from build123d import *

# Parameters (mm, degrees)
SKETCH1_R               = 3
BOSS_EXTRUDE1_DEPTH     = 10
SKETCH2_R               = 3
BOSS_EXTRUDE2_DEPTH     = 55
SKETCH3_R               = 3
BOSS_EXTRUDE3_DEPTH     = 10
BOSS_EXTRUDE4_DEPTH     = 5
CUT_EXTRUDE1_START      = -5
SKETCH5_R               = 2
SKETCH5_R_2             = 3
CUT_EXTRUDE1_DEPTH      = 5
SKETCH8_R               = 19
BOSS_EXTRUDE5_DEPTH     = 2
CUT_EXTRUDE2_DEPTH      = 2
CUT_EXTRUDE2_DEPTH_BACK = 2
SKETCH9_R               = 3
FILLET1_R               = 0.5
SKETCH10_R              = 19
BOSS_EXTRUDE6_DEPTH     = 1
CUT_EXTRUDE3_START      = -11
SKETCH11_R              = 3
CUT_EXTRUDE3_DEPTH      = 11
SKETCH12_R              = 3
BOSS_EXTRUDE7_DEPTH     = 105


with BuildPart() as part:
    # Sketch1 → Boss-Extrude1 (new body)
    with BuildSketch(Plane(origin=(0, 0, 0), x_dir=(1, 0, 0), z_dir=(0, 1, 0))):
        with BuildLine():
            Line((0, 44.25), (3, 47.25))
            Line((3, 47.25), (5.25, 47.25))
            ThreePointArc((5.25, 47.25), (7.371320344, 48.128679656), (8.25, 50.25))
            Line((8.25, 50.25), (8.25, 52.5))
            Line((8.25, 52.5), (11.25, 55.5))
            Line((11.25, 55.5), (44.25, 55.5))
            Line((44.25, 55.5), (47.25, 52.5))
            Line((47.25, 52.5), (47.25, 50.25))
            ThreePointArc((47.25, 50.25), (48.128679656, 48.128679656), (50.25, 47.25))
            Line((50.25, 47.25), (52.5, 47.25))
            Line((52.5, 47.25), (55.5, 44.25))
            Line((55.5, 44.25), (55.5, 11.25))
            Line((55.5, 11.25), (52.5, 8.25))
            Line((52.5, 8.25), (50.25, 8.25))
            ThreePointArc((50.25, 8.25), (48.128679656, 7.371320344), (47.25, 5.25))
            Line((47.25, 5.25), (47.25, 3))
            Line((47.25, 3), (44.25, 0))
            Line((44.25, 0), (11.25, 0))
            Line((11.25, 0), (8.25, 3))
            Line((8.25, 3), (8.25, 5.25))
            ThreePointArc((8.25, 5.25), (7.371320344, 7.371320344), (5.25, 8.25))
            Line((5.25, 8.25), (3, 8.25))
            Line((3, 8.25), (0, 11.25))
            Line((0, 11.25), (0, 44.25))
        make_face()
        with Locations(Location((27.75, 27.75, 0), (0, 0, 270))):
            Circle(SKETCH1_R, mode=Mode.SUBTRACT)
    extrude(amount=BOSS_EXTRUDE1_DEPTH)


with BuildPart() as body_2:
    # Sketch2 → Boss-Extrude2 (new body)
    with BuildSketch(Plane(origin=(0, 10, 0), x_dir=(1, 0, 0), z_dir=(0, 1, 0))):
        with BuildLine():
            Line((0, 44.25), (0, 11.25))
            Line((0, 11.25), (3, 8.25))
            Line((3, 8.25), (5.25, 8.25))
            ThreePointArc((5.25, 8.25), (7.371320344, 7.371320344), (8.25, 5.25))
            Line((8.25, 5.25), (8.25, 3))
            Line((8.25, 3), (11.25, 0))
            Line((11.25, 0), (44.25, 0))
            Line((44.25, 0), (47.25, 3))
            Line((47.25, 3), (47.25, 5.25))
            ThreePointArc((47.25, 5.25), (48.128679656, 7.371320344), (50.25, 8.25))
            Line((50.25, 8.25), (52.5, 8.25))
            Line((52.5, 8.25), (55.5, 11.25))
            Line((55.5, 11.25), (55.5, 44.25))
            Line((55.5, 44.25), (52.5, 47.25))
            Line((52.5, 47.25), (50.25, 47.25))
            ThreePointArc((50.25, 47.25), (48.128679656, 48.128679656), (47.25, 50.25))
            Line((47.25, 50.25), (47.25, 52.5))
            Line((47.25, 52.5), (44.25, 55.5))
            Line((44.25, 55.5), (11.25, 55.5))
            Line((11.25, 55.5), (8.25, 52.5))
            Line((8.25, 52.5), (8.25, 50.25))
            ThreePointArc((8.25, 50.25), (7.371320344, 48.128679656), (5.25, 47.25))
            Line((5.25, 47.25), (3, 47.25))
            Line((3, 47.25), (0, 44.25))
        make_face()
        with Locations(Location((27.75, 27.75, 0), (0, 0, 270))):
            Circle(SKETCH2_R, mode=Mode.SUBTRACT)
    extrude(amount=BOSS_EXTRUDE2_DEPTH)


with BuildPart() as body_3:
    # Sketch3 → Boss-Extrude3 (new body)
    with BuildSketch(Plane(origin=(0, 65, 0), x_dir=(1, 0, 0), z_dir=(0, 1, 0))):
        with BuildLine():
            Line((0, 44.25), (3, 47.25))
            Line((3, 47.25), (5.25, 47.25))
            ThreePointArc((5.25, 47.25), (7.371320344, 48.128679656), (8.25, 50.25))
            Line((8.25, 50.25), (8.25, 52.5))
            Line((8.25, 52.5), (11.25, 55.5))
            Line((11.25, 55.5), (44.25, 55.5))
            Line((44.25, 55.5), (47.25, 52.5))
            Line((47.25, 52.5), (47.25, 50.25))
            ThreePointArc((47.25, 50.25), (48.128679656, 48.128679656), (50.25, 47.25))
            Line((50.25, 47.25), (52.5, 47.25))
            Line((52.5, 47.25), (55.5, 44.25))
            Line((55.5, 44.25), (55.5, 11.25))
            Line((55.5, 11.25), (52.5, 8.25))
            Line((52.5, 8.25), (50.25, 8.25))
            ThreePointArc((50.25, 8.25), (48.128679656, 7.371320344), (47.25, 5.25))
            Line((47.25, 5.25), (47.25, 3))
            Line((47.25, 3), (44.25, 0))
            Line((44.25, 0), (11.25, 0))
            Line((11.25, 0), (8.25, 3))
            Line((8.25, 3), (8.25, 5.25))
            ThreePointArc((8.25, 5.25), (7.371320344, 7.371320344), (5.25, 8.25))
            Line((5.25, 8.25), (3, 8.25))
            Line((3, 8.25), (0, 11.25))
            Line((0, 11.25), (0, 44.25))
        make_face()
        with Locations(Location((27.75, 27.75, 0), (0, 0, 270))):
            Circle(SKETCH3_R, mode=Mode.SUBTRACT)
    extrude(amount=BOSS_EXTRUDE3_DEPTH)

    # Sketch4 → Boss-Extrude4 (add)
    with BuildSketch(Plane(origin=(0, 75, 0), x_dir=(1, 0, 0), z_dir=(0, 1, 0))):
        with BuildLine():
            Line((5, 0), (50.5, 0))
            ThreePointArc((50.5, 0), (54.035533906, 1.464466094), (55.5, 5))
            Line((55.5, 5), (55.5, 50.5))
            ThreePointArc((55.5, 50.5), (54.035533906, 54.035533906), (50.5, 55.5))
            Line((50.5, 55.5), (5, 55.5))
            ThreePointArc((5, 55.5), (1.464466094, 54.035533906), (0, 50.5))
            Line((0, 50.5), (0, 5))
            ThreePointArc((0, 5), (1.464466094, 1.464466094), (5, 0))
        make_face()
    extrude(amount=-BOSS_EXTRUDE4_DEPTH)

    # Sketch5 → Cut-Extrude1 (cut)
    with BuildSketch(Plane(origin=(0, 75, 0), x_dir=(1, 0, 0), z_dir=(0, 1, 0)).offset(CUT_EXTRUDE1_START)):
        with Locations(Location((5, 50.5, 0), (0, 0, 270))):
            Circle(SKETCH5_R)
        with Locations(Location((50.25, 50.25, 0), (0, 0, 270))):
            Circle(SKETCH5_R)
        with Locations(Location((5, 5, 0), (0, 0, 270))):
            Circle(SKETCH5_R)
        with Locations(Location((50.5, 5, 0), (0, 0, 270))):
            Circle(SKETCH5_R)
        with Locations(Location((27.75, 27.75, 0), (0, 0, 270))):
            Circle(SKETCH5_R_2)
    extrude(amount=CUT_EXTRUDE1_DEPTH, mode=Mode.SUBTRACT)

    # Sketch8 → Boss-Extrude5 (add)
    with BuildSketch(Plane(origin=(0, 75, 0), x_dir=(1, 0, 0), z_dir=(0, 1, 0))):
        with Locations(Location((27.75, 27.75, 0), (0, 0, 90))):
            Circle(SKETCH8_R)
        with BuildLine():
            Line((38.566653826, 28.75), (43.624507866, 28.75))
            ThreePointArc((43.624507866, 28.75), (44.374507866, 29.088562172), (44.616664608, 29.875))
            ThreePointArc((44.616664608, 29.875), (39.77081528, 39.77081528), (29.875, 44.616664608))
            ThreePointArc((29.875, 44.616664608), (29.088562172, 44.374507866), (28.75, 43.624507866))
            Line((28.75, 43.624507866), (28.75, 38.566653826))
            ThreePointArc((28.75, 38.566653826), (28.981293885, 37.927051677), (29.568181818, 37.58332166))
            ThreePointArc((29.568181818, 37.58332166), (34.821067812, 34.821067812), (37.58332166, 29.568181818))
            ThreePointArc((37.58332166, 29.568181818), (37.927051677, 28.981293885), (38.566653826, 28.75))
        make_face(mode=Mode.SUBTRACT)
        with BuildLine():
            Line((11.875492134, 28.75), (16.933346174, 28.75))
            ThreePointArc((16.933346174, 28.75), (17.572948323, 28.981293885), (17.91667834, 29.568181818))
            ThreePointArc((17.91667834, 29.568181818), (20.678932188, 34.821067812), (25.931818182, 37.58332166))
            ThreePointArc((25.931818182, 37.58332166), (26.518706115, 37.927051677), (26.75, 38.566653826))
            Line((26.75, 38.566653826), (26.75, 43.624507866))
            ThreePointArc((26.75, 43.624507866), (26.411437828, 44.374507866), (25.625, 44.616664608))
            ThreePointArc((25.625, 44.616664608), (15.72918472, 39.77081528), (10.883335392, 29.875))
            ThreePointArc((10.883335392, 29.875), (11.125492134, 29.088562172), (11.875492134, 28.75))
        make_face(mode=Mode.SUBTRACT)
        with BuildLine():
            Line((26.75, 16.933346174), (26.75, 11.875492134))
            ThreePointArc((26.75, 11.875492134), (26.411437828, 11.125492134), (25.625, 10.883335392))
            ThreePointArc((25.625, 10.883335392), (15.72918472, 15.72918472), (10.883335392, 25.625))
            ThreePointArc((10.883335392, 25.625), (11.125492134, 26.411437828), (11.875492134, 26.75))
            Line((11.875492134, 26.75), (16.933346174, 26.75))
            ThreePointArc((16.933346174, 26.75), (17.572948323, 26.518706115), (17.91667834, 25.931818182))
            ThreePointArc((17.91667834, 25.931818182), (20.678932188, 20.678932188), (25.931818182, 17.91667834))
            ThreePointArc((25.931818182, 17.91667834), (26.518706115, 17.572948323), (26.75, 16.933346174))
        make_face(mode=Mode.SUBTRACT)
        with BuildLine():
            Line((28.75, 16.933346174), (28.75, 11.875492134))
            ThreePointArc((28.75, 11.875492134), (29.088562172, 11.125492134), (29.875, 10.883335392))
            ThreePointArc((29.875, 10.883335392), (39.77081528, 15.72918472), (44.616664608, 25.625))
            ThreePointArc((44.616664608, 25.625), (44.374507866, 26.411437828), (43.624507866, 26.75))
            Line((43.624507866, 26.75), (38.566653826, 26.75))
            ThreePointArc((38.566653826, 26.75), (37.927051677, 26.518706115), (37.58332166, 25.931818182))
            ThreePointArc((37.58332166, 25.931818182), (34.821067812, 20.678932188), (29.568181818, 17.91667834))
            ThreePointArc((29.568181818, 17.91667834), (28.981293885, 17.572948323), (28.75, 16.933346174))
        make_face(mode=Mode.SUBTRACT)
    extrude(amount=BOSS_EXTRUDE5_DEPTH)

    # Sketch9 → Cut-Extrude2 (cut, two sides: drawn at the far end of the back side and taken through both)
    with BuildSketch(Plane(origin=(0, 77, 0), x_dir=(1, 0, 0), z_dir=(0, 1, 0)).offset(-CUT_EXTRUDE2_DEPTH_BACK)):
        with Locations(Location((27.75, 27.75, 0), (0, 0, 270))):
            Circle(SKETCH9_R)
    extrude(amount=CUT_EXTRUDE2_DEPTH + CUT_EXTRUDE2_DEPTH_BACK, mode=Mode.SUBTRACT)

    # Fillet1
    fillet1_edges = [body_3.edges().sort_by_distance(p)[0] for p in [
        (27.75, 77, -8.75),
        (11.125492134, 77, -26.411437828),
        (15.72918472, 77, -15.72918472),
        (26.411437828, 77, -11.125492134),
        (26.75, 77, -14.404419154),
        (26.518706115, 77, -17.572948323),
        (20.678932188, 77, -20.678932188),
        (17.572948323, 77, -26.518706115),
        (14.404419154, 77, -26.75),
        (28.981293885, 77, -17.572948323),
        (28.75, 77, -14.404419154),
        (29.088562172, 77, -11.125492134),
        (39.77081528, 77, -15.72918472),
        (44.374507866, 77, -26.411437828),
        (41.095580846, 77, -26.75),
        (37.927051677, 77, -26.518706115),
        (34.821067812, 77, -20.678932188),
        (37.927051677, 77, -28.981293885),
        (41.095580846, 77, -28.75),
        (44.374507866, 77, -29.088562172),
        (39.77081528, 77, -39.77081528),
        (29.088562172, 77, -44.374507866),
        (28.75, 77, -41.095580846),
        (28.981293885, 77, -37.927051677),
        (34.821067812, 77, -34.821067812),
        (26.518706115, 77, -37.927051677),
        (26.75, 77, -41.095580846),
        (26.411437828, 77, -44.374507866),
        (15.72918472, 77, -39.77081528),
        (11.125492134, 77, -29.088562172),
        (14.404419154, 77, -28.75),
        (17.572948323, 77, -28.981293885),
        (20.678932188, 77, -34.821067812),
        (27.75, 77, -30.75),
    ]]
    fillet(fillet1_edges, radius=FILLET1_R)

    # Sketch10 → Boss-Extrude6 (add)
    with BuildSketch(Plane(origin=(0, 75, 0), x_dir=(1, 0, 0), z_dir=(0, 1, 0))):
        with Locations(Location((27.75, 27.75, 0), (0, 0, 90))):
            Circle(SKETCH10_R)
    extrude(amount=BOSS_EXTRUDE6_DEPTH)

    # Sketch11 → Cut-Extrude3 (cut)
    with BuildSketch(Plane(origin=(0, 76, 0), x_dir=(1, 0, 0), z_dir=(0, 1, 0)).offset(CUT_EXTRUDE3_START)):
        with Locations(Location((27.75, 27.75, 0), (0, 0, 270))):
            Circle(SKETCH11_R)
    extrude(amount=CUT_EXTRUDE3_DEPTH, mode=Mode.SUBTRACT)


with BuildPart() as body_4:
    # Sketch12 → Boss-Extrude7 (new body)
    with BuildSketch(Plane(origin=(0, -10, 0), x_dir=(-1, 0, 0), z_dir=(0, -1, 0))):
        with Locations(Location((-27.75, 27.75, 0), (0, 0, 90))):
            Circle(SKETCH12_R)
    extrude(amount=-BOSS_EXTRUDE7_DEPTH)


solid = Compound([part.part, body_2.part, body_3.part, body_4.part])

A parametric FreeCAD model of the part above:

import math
import FreeCAD as App
import Part
import Sketcher


def edges_at(feature, points):
    """Names of the edges that pass closest to the given points."""
    edges = feature.Shape.Edges
    near = lambda p: min(range(len(edges)), key=lambda i: edges[i].distToShape(Part.Vertex(*p))[0])
    return sorted({f"Edge{near(p) + 1}" for p in points})

doc = App.newDocument("Part")
body = doc.addObject("PartDesign::Body", "Body")

sketch1 = doc.addObject("Sketcher::SketchObject", "Sketch")
body.addObject(sketch1)
sketch1.AttachmentSupport = (doc.XZ_Plane, [""])
sketch1.MapMode = "FlatFace"
sketch1.addGeometry([
    Part.LineSegment(App.Vector(3, -47.25, 0), App.Vector(0, -44.25, 0)),
    Part.LineSegment(App.Vector(0, -44.25, 0), App.Vector(0, -11.25, 0)),
    Part.LineSegment(App.Vector(0, -11.25, 0), App.Vector(3, -8.25, 0)),
    Part.LineSegment(App.Vector(3, -8.25, 0), App.Vector(5.25, -8.25, 0)),
    Part.ArcOfCircle(Part.Circle(App.Vector(5.25, -5.25, 0), App.Vector(0, 0, 1), 3), math.radians(-90), math.radians(0)),
    Part.LineSegment(App.Vector(8.25, -5.25, 0), App.Vector(8.25, -3, 0)),
    Part.LineSegment(App.Vector(8.25, -3, 0), App.Vector(11.25, 0, 0)),
    Part.LineSegment(App.Vector(11.25, 0, 0), App.Vector(44.25, 0, 0)),
    Part.LineSegment(App.Vector(44.25, 0, 0), App.Vector(47.25, -3, 0)),
    Part.LineSegment(App.Vector(47.25, -3, 0), App.Vector(47.25, -5.25, 0)),
    Part.ArcOfCircle(Part.Circle(App.Vector(50.25, -5.25, 0), App.Vector(0, 0, 1), 3), math.radians(180), math.radians(270)),
    Part.LineSegment(App.Vector(50.25, -8.25, 0), App.Vector(52.5, -8.25, 0)),
    Part.LineSegment(App.Vector(52.5, -8.25, 0), App.Vector(55.5, -11.25, 0)),
    Part.LineSegment(App.Vector(55.5, -11.25, 0), App.Vector(55.5, -44.25, 0)),
    Part.LineSegment(App.Vector(55.5, -44.25, 0), App.Vector(52.5, -47.25, 0)),
    Part.LineSegment(App.Vector(52.5, -47.25, 0), App.Vector(50.25, -47.25, 0)),
    Part.ArcOfCircle(Part.Circle(App.Vector(50.25, -50.25, 0), App.Vector(0, 0, 1), 3), math.radians(90), math.radians(180)),
    Part.LineSegment(App.Vector(47.25, -50.25, 0), App.Vector(47.25, -52.5, 0)),
    Part.LineSegment(App.Vector(47.25, -52.5, 0), App.Vector(44.25, -55.5, 0)),
    Part.LineSegment(App.Vector(44.25, -55.5, 0), App.Vector(11.25, -55.5, 0)),
    Part.LineSegment(App.Vector(11.25, -55.5, 0), App.Vector(8.25, -52.5, 0)),
    Part.LineSegment(App.Vector(8.25, -52.5, 0), App.Vector(8.25, -50.25, 0)),
    Part.ArcOfCircle(Part.Circle(App.Vector(5.25, -50.25, 0), App.Vector(0, 0, 1), 3), math.radians(0), math.radians(90)),
    Part.LineSegment(App.Vector(5.25, -47.25, 0), App.Vector(3, -47.25, 0)),
    Part.Circle(App.Vector(27.75, -27.75, 0), App.Vector(0, 0, 1), 3),
], False)
sketch1.addConstraint([
    Sketcher.Constraint("Coincident", 0, 2, 1, 1),
    Sketcher.Constraint("Coincident", 1, 2, 2, 1),
    Sketcher.Constraint("Coincident", 2, 2, 3, 1),
    Sketcher.Constraint("Tangent", 3, 2, 4, 1),
    Sketcher.Constraint("Tangent", 4, 2, 5, 1),
    Sketcher.Constraint("Coincident", 5, 2, 6, 1),
    Sketcher.Constraint("Coincident", 6, 2, 7, 1),
    Sketcher.Constraint("Coincident", 7, 2, 8, 1),
    Sketcher.Constraint("Coincident", 8, 2, 9, 1),
    Sketcher.Constraint("Tangent", 9, 2, 10, 1),
    Sketcher.Constraint("Tangent", 10, 2, 11, 1),
    Sketcher.Constraint("Coincident", 11, 2, 12, 1),
    Sketcher.Constraint("Coincident", 12, 2, 13, 1),
    Sketcher.Constraint("Coincident", 13, 2, 14, 1),
    Sketcher.Constraint("Coincident", 14, 2, 15, 1),
    Sketcher.Constraint("Tangent", 15, 2, 16, 1),
    Sketcher.Constraint("Tangent", 16, 2, 17, 1),
    Sketcher.Constraint("Coincident", 17, 2, 18, 1),
    Sketcher.Constraint("Coincident", 18, 2, 19, 1),
    Sketcher.Constraint("Coincident", 19, 2, 20, 1),
    Sketcher.Constraint("Coincident", 20, 2, 21, 1),
    Sketcher.Constraint("Tangent", 21, 2, 22, 1),
    Sketcher.Constraint("Tangent", 22, 2, 23, 1),
    Sketcher.Constraint("Coincident", 23, 2, 0, 1),
    Sketcher.Constraint("Vertical", 1),
    Sketcher.Constraint("Horizontal", 3),
    Sketcher.Constraint("Vertical", 5),
    Sketcher.Constraint("Horizontal", 7),
    Sketcher.Constraint("Vertical", 9),
    Sketcher.Constraint("Horizontal", 11),
    Sketcher.Constraint("Vertical", 13),
    Sketcher.Constraint("Horizontal", 15),
    Sketcher.Constraint("Vertical", 17),
    Sketcher.Constraint("Horizontal", 19),
    Sketcher.Constraint("Vertical", 21),
    Sketcher.Constraint("Horizontal", 23),
    Sketcher.Constraint("Equal", 4, 10),
    Sketcher.Constraint("Equal", 10, 16),
    Sketcher.Constraint("Equal", 16, 22),
    Sketcher.Constraint("Equal", 22, 24),
    Sketcher.Constraint("PointOnObject", 0, 2, -2),
    Sketcher.Constraint("PointOnObject", 6, 2, -1),
    Sketcher.Constraint("Perpendicular", 0, 2),
    Sketcher.Constraint("Parallel", 2, 6),
    Sketcher.Constraint("Perpendicular", 6, 8),
    Sketcher.Constraint("Parallel", 8, 12),
    Sketcher.Constraint("Perpendicular", 12, 14),
    Sketcher.Constraint("Parallel", 14, 18),
    Sketcher.Constraint("Perpendicular", 18, 20),
    Sketcher.Constraint("Horizontal", 4, 3, 10, 3),
    Sketcher.Constraint("Horizontal", 16, 3, 22, 3),
    Sketcher.Constraint("Horizontal", 5, 2, 8, 2),
    Sketcher.Constraint("Horizontal", 1, 2, 12, 2),
    Sketcher.Constraint("Horizontal", 0, 2, 13, 2),
    Sketcher.Constraint("Horizontal", 17, 2, 20, 2),
    Sketcher.Constraint("Vertical", 10, 3, 16, 3),
    Sketcher.Constraint("Vertical", 4, 3, 22, 3),
    Sketcher.Constraint("Vertical", 11, 2, 14, 2),
    Sketcher.Constraint("Vertical", 7, 2, 18, 2),
    Sketcher.Constraint("Vertical", 6, 2, 19, 2),
    Sketcher.Constraint("Equal", 3, 11),
    Sketcher.Constraint("Equal", 19, 1),
    Sketcher.Constraint("Equal", 23, 5),
    Sketcher.Constraint("Equal", 9, 17),
    Sketcher.Constraint("Equal", 2, 6),
    Sketcher.Constraint("Diameter", 24, 6.0),
    Sketcher.Constraint("DistanceX", 7, 1, 7, 2, 33.0),
    Sketcher.Constraint("DistanceX", -1, 1, 2, 2, 3.0),
    Sketcher.Constraint("DistanceX", 3, 1, 3, 2, 2.25),
    Sketcher.Constraint("DistanceX", 4, 3, 24, 3, 22.5),
    Sketcher.Constraint("DistanceY", 24, 3, 4, 3, 22.5),
])
pad1 = doc.addObject("PartDesign::Pad", "Pad")
body.addObject(pad1)
pad1.Profile = sketch1
pad1.Length = 10
pad1.Reversed = True
body2 = doc.addObject("PartDesign::Body", "Body001")

sketch2 = doc.addObject("Sketcher::SketchObject", "Sketch001")
body2.addObject(sketch2)
sketch2.AttachmentSupport = (doc.getObject("XZ_Plane001"), [""])
sketch2.MapMode = "FlatFace"
sketch2.AttachmentOffset = App.Placement(App.Vector(0, 0, -10), App.Rotation())
sketch2.addGeometry([
    Part.LineSegment(App.Vector(0, -44.25, 0), App.Vector(0, -11.25, 0)),
    Part.LineSegment(App.Vector(0, -11.25, 0), App.Vector(3, -8.25, 0)),
    Part.LineSegment(App.Vector(3, -8.25, 0), App.Vector(5.25, -8.25, 0)),
    Part.ArcOfCircle(Part.Circle(App.Vector(5.25, -5.25, 0), App.Vector(0, 0, 1), 3), math.radians(-90), math.radians(0)),
    Part.LineSegment(App.Vector(8.25, -5.25, 0), App.Vector(8.25, -3, 0)),
    Part.LineSegment(App.Vector(8.25, -3, 0), App.Vector(11.25, 0, 0)),
    Part.LineSegment(App.Vector(11.25, 0, 0), App.Vector(44.25, 0, 0)),
    Part.LineSegment(App.Vector(44.25, 0, 0), App.Vector(47.25, -3, 0)),
    Part.LineSegment(App.Vector(47.25, -3, 0), App.Vector(47.25, -5.25, 0)),
    Part.ArcOfCircle(Part.Circle(App.Vector(50.25, -5.25, 0), App.Vector(0, 0, 1), 3), math.radians(180), math.radians(270)),
    Part.LineSegment(App.Vector(50.25, -8.25, 0), App.Vector(52.5, -8.25, 0)),
    Part.LineSegment(App.Vector(52.5, -8.25, 0), App.Vector(55.5, -11.25, 0)),
    Part.LineSegment(App.Vector(55.5, -11.25, 0), App.Vector(55.5, -44.25, 0)),
    Part.LineSegment(App.Vector(55.5, -44.25, 0), App.Vector(52.5, -47.25, 0)),
    Part.LineSegment(App.Vector(52.5, -47.25, 0), App.Vector(50.25, -47.25, 0)),
    Part.ArcOfCircle(Part.Circle(App.Vector(50.25, -50.25, 0), App.Vector(0, 0, 1), 3), math.radians(90), math.radians(180)),
    Part.LineSegment(App.Vector(47.25, -50.25, 0), App.Vector(47.25, -52.5, 0)),
    Part.LineSegment(App.Vector(47.25, -52.5, 0), App.Vector(44.25, -55.5, 0)),
    Part.LineSegment(App.Vector(44.25, -55.5, 0), App.Vector(11.25, -55.5, 0)),
    Part.LineSegment(App.Vector(11.25, -55.5, 0), App.Vector(8.25, -52.5, 0)),
    Part.LineSegment(App.Vector(8.25, -52.5, 0), App.Vector(8.25, -50.25, 0)),
    Part.ArcOfCircle(Part.Circle(App.Vector(5.25, -50.25, 0), App.Vector(0, 0, 1), 3), math.radians(0), math.radians(90)),
    Part.LineSegment(App.Vector(5.25, -47.25, 0), App.Vector(3, -47.25, 0)),
    Part.LineSegment(App.Vector(3, -47.25, 0), App.Vector(0, -44.25, 0)),
    Part.Circle(App.Vector(27.75, -27.75, 0), App.Vector(0, 0, 1), 3),
], False)
sketch2.addConstraint([
    Sketcher.Constraint("Coincident", 0, 2, 1, 1),
    Sketcher.Constraint("Coincident", 1, 2, 2, 1),
    Sketcher.Constraint("Tangent", 2, 2, 3, 1),
    Sketcher.Constraint("Tangent", 3, 2, 4, 1),
    Sketcher.Constraint("Coincident", 4, 2, 5, 1),
    Sketcher.Constraint("Coincident", 5, 2, 6, 1),
    Sketcher.Constraint("Coincident", 6, 2, 7, 1),
    Sketcher.Constraint("Coincident", 7, 2, 8, 1),
    Sketcher.Constraint("Tangent", 8, 2, 9, 1),
    Sketcher.Constraint("Tangent", 9, 2, 10, 1),
    Sketcher.Constraint("Coincident", 10, 2, 11, 1),
    Sketcher.Constraint("Coincident", 11, 2, 12, 1),
    Sketcher.Constraint("Coincident", 12, 2, 13, 1),
    Sketcher.Constraint("Coincident", 13, 2, 14, 1),
    Sketcher.Constraint("Tangent", 14, 2, 15, 1),
    Sketcher.Constraint("Tangent", 15, 2, 16, 1),
    Sketcher.Constraint("Coincident", 16, 2, 17, 1),
    Sketcher.Constraint("Coincident", 17, 2, 18, 1),
    Sketcher.Constraint("Coincident", 18, 2, 19, 1),
    Sketcher.Constraint("Coincident", 19, 2, 20, 1),
    Sketcher.Constraint("Tangent", 20, 2, 21, 1),
    Sketcher.Constraint("Tangent", 21, 2, 22, 1),
    Sketcher.Constraint("Coincident", 22, 2, 23, 1),
    Sketcher.Constraint("Coincident", 23, 2, 0, 1),
    Sketcher.Constraint("Vertical", 0),
    Sketcher.Constraint("Horizontal", 2),
    Sketcher.Constraint("Vertical", 4),
    Sketcher.Constraint("Horizontal", 6),
    Sketcher.Constraint("Vertical", 8),
    Sketcher.Constraint("Horizontal", 10),
    Sketcher.Constraint("Vertical", 12),
    Sketcher.Constraint("Horizontal", 14),
    Sketcher.Constraint("Vertical", 16),
    Sketcher.Constraint("Horizontal", 18),
    Sketcher.Constraint("Vertical", 20),
    Sketcher.Constraint("Horizontal", 22),
    Sketcher.Constraint("Equal", 3, 9),
    Sketcher.Constraint("Equal", 9, 15),
    Sketcher.Constraint("Equal", 15, 21),
    Sketcher.Constraint("Equal", 21, 24),
    Sketcher.Constraint("PointOnObject", 0, 2, -2),
    Sketcher.Constraint("PointOnObject", 5, 2, -1),
    Sketcher.Constraint("Parallel", 1, 5),
    Sketcher.Constraint("Perpendicular", 5, 7),
    Sketcher.Constraint("Parallel", 7, 11),
    Sketcher.Constraint("Perpendicular", 11, 13),
    Sketcher.Constraint("Parallel", 13, 17),
    Sketcher.Constraint("Perpendicular", 17, 19),
    Sketcher.Constraint("Parallel", 19, 23),
    Sketcher.Constraint("Horizontal", 3, 3, 9, 3),
    Sketcher.Constraint("Horizontal", 15, 3, 21, 3),
    Sketcher.Constraint("Horizontal", 4, 2, 7, 2),
    Sketcher.Constraint("Horizontal", 0, 2, 11, 2),
    Sketcher.Constraint("Horizontal", 16, 2, 19, 2),
    Sketcher.Constraint("Horizontal", 12, 2, 23, 2),
    Sketcher.Constraint("Vertical", 9, 3, 15, 3),
    Sketcher.Constraint("Vertical", 3, 3, 21, 3),
    Sketcher.Constraint("Vertical", 10, 2, 13, 2),
    Sketcher.Constraint("Vertical", 6, 2, 17, 2),
    Sketcher.Constraint("Vertical", 5, 2, 18, 2),
    Sketcher.Constraint("Equal", 2, 10),
    Sketcher.Constraint("Equal", 18, 0),
    Sketcher.Constraint("Equal", 22, 4),
    Sketcher.Constraint("Equal", 8, 16),
    Sketcher.Constraint("Equal", 1, 5),
    Sketcher.Constraint("Diameter", 24, 6.0),
    Sketcher.Constraint("DistanceX", 6, 1, 6, 2, 33.0),
    Sketcher.Constraint("DistanceX", -1, 1, 1, 2, 3.0),
    Sketcher.Constraint("DistanceX", 2, 1, 2, 2, 2.25),
    Sketcher.Constraint("DistanceX", 3, 3, 24, 3, 22.5),
    Sketcher.Constraint("DistanceY", 24, 3, 3, 3, 22.5),
])
pad2 = doc.addObject("PartDesign::Pad", "Pad001")
body2.addObject(pad2)
pad2.Profile = sketch2
pad2.Length = 55
pad2.Reversed = True
body3 = doc.addObject("PartDesign::Body", "Body002")

sketch3 = doc.addObject("Sketcher::SketchObject", "Sketch002")
body3.addObject(sketch3)
sketch3.AttachmentSupport = (doc.getObject("XZ_Plane002"), [""])
sketch3.MapMode = "FlatFace"
sketch3.AttachmentOffset = App.Placement(App.Vector(0, 0, -65), App.Rotation())
sketch3.addGeometry([
    Part.LineSegment(App.Vector(3, -47.25, 0), App.Vector(0, -44.25, 0)),
    Part.LineSegment(App.Vector(0, -44.25, 0), App.Vector(0, -11.25, 0)),
    Part.LineSegment(App.Vector(0, -11.25, 0), App.Vector(3, -8.25, 0)),
    Part.LineSegment(App.Vector(3, -8.25, 0), App.Vector(5.25, -8.25, 0)),
    Part.ArcOfCircle(Part.Circle(App.Vector(5.25, -5.25, 0), App.Vector(0, 0, 1), 3), math.radians(-90), math.radians(0)),
    Part.LineSegment(App.Vector(8.25, -5.25, 0), App.Vector(8.25, -3, 0)),
    Part.LineSegment(App.Vector(8.25, -3, 0), App.Vector(11.25, 0, 0)),
    Part.LineSegment(App.Vector(11.25, 0, 0), App.Vector(44.25, 0, 0)),
    Part.LineSegment(App.Vector(44.25, 0, 0), App.Vector(47.25, -3, 0)),
    Part.LineSegment(App.Vector(47.25, -3, 0), App.Vector(47.25, -5.25, 0)),
    Part.ArcOfCircle(Part.Circle(App.Vector(50.25, -5.25, 0), App.Vector(0, 0, 1), 3), math.radians(180), math.radians(270)),
    Part.LineSegment(App.Vector(50.25, -8.25, 0), App.Vector(52.5, -8.25, 0)),
    Part.LineSegment(App.Vector(52.5, -8.25, 0), App.Vector(55.5, -11.25, 0)),
    Part.LineSegment(App.Vector(55.5, -11.25, 0), App.Vector(55.5, -44.25, 0)),
    Part.LineSegment(App.Vector(55.5, -44.25, 0), App.Vector(52.5, -47.25, 0)),
    Part.LineSegment(App.Vector(52.5, -47.25, 0), App.Vector(50.25, -47.25, 0)),
    Part.ArcOfCircle(Part.Circle(App.Vector(50.25, -50.25, 0), App.Vector(0, 0, 1), 3), math.radians(90), math.radians(180)),
    Part.LineSegment(App.Vector(47.25, -50.25, 0), App.Vector(47.25, -52.5, 0)),
    Part.LineSegment(App.Vector(47.25, -52.5, 0), App.Vector(44.25, -55.5, 0)),
    Part.LineSegment(App.Vector(44.25, -55.5, 0), App.Vector(11.25, -55.5, 0)),
    Part.LineSegment(App.Vector(11.25, -55.5, 0), App.Vector(8.25, -52.5, 0)),
    Part.LineSegment(App.Vector(8.25, -52.5, 0), App.Vector(8.25, -50.25, 0)),
    Part.ArcOfCircle(Part.Circle(App.Vector(5.25, -50.25, 0), App.Vector(0, 0, 1), 3), math.radians(0), math.radians(90)),
    Part.LineSegment(App.Vector(5.25, -47.25, 0), App.Vector(3, -47.25, 0)),
    Part.Circle(App.Vector(27.75, -27.75, 0), App.Vector(0, 0, 1), 3),
], False)
sketch3.addConstraint([
    Sketcher.Constraint("Coincident", 0, 2, 1, 1),
    Sketcher.Constraint("Coincident", 1, 2, 2, 1),
    Sketcher.Constraint("Coincident", 2, 2, 3, 1),
    Sketcher.Constraint("Tangent", 3, 2, 4, 1),
    Sketcher.Constraint("Tangent", 4, 2, 5, 1),
    Sketcher.Constraint("Coincident", 5, 2, 6, 1),
    Sketcher.Constraint("Coincident", 6, 2, 7, 1),
    Sketcher.Constraint("Coincident", 7, 2, 8, 1),
    Sketcher.Constraint("Coincident", 8, 2, 9, 1),
    Sketcher.Constraint("Tangent", 9, 2, 10, 1),
    Sketcher.Constraint("Tangent", 10, 2, 11, 1),
    Sketcher.Constraint("Coincident", 11, 2, 12, 1),
    Sketcher.Constraint("Coincident", 12, 2, 13, 1),
    Sketcher.Constraint("Coincident", 13, 2, 14, 1),
    Sketcher.Constraint("Coincident", 14, 2, 15, 1),
    Sketcher.Constraint("Tangent", 15, 2, 16, 1),
    Sketcher.Constraint("Tangent", 16, 2, 17, 1),
    Sketcher.Constraint("Coincident", 17, 2, 18, 1),
    Sketcher.Constraint("Coincident", 18, 2, 19, 1),
    Sketcher.Constraint("Coincident", 19, 2, 20, 1),
    Sketcher.Constraint("Coincident", 20, 2, 21, 1),
    Sketcher.Constraint("Tangent", 21, 2, 22, 1),
    Sketcher.Constraint("Tangent", 22, 2, 23, 1),
    Sketcher.Constraint("Coincident", 23, 2, 0, 1),
    Sketcher.Constraint("Vertical", 1),
    Sketcher.Constraint("Horizontal", 3),
    Sketcher.Constraint("Vertical", 5),
    Sketcher.Constraint("Horizontal", 7),
    Sketcher.Constraint("Vertical", 9),
    Sketcher.Constraint("Horizontal", 11),
    Sketcher.Constraint("Vertical", 13),
    Sketcher.Constraint("Horizontal", 15),
    Sketcher.Constraint("Vertical", 17),
    Sketcher.Constraint("Horizontal", 19),
    Sketcher.Constraint("Vertical", 21),
    Sketcher.Constraint("Horizontal", 23),
    Sketcher.Constraint("Equal", 4, 10),
    Sketcher.Constraint("Equal", 10, 16),
    Sketcher.Constraint("Equal", 16, 22),
    Sketcher.Constraint("Equal", 22, 24),
    Sketcher.Constraint("PointOnObject", 0, 2, -2),
    Sketcher.Constraint("PointOnObject", 6, 2, -1),
    Sketcher.Constraint("Perpendicular", 0, 2),
    Sketcher.Constraint("Parallel", 2, 6),
    Sketcher.Constraint("Perpendicular", 6, 8),
    Sketcher.Constraint("Parallel", 8, 12),
    Sketcher.Constraint("Perpendicular", 12, 14),
    Sketcher.Constraint("Parallel", 14, 18),
    Sketcher.Constraint("Perpendicular", 18, 20),
    Sketcher.Constraint("Horizontal", 4, 3, 10, 3),
    Sketcher.Constraint("Horizontal", 16, 3, 22, 3),
    Sketcher.Constraint("Horizontal", 5, 2, 8, 2),
    Sketcher.Constraint("Horizontal", 1, 2, 12, 2),
    Sketcher.Constraint("Horizontal", 0, 2, 13, 2),
    Sketcher.Constraint("Horizontal", 17, 2, 20, 2),
    Sketcher.Constraint("Vertical", 10, 3, 16, 3),
    Sketcher.Constraint("Vertical", 4, 3, 22, 3),
    Sketcher.Constraint("Vertical", 11, 2, 14, 2),
    Sketcher.Constraint("Vertical", 7, 2, 18, 2),
    Sketcher.Constraint("Vertical", 6, 2, 19, 2),
    Sketcher.Constraint("Equal", 3, 11),
    Sketcher.Constraint("Equal", 19, 1),
    Sketcher.Constraint("Equal", 23, 5),
    Sketcher.Constraint("Equal", 9, 17),
    Sketcher.Constraint("Equal", 2, 6),
    Sketcher.Constraint("Diameter", 24, 6.0),
    Sketcher.Constraint("DistanceX", 7, 1, 7, 2, 33.0),
    Sketcher.Constraint("DistanceX", -1, 1, 2, 2, 3.0),
    Sketcher.Constraint("DistanceX", 3, 1, 3, 2, 2.25),
    Sketcher.Constraint("DistanceX", 4, 3, 24, 3, 22.5),
    Sketcher.Constraint("DistanceY", 24, 3, 4, 3, 22.5),
])
pad3 = doc.addObject("PartDesign::Pad", "Pad002")
body3.addObject(pad3)
pad3.Profile = sketch3
pad3.Length = 10
pad3.Reversed = True

sketch4 = doc.addObject("Sketcher::SketchObject", "Sketch003")
body3.addObject(sketch4)
sketch4.AttachmentSupport = (doc.getObject("XZ_Plane002"), [""])
sketch4.MapMode = "FlatFace"
sketch4.AttachmentOffset = App.Placement(App.Vector(0, 0, -75), App.Rotation())
sketch4.addGeometry([
    Part.LineSegment(App.Vector(5, 0, 0), App.Vector(50.5, 0, 0)),
    Part.ArcOfCircle(Part.Circle(App.Vector(50.5, -5, 0), App.Vector(0, 0, 1), 5), math.radians(0), math.radians(90)),
    Part.LineSegment(App.Vector(55.5, -5, 0), App.Vector(55.5, -50.5, 0)),
    Part.ArcOfCircle(Part.Circle(App.Vector(50.5, -50.5, 0), App.Vector(0, 0, 1), 5), math.radians(-90), math.radians(0)),
    Part.LineSegment(App.Vector(50.5, -55.5, 0), App.Vector(5, -55.5, 0)),
    Part.ArcOfCircle(Part.Circle(App.Vector(5, -50.5, 0), App.Vector(0, 0, 1), 5), math.radians(180), math.radians(270)),
    Part.LineSegment(App.Vector(0, -50.5, 0), App.Vector(0, -5, 0)),
    Part.ArcOfCircle(Part.Circle(App.Vector(5, -5, 0), App.Vector(0, 0, 1), 5), math.radians(90), math.radians(180)),
], False)
sketch4.addConstraint([
    Sketcher.Constraint("Tangent", 0, 2, 1, 2),
    Sketcher.Constraint("Tangent", 1, 1, 2, 1),
    Sketcher.Constraint("Tangent", 2, 2, 3, 2),
    Sketcher.Constraint("Tangent", 3, 1, 4, 1),
    Sketcher.Constraint("Tangent", 4, 2, 5, 2),
    Sketcher.Constraint("Tangent", 5, 1, 6, 1),
    Sketcher.Constraint("Tangent", 6, 2, 7, 2),
    Sketcher.Constraint("Tangent", 7, 1, 0, 1),
    Sketcher.Constraint("Horizontal", 0),
    Sketcher.Constraint("Vertical", 2),
    Sketcher.Constraint("Horizontal", 4),
    Sketcher.Constraint("Vertical", 6),
    Sketcher.Constraint("Equal", 1, 3),
    Sketcher.Constraint("Equal", 3, 5),
    Sketcher.Constraint("Equal", 5, 7),
    Sketcher.Constraint("PointOnObject", 0, 2, -1),
    Sketcher.Constraint("PointOnObject", 5, 1, -2),
    Sketcher.Constraint("Equal", 4, 2),
    Sketcher.Constraint("Radius", 1, 5.0),
    Sketcher.Constraint("DistanceX", 0, 1, 0, 2, 45.5),
])
pad4 = doc.addObject("PartDesign::Pad", "Pad003")
body3.addObject(pad4)
pad4.Profile = sketch4
pad4.Length = 5

sketch5 = doc.addObject("Sketcher::SketchObject", "Sketch004")
body3.addObject(sketch5)
sketch5.AttachmentSupport = (doc.getObject("XZ_Plane002"), [""])
sketch5.MapMode = "FlatFace"
sketch5.AttachmentOffset = App.Placement(App.Vector(0, 0, -70), App.Rotation())
sketch5.addGeometry([
    Part.Circle(App.Vector(5, -50.5, 0), App.Vector(0, 0, 1), 2),
    Part.Circle(App.Vector(50.25, -50.25, 0), App.Vector(0, 0, 1), 2),
    Part.Circle(App.Vector(5, -5, 0), App.Vector(0, 0, 1), 2),
    Part.Circle(App.Vector(50.5, -5, 0), App.Vector(0, 0, 1), 2),
    Part.Circle(App.Vector(27.75, -27.75, 0), App.Vector(0, 0, 1), 3),
], False)
sketch5.addConstraint([
    Sketcher.Constraint("Equal", 0, 1),
    Sketcher.Constraint("Equal", 1, 2),
    Sketcher.Constraint("Equal", 2, 3),
    Sketcher.Constraint("Horizontal", 2, 3, 3, 3),
    Sketcher.Constraint("Vertical", 0, 3, 2, 3),
    Sketcher.Constraint("Diameter", 0, 4.0),
    Sketcher.Constraint("Diameter", 4, 6.0),
    Sketcher.Constraint("DistanceX", -1, 1, 0, 3, 5.0),
    Sketcher.Constraint("DistanceY", 2, 3, -1, 1, 5.0),
    Sketcher.Constraint("DistanceY", 0, 3, -1, 1, 50.5),
    Sketcher.Constraint("DistanceX", -1, 1, 3, 3, 50.5),
    Sketcher.Constraint("DistanceX", 4, 3, 1, 3, 22.5),
    Sketcher.Constraint("DistanceY", 1, 3, 4, 3, 22.5),
    Sketcher.Constraint("DistanceX", -1, 1, 1, 3, 50.25),
    Sketcher.Constraint("DistanceY", 1, 3, -1, 1, 50.25),
])
pocket1 = doc.addObject("PartDesign::Pocket", "Pocket")
body3.addObject(pocket1)
pocket1.Profile = sketch5
pocket1.Length = 5

sketch6 = doc.addObject("Sketcher::SketchObject", "Sketch005")
body3.addObject(sketch6)
sketch6.AttachmentSupport = (doc.getObject("XZ_Plane002"), [""])
sketch6.MapMode = "FlatFace"
sketch6.AttachmentOffset = App.Placement(App.Vector(0, 0, -75), App.Rotation())
sketch6.addGeometry([
    Part.Circle(App.Vector(27.75, -27.75, 0), App.Vector(0, 0, 1), 19),
    Part.LineSegment(App.Vector(28.75, -11.875492, 0), App.Vector(28.75, -16.933346, 0)),
    Part.ArcOfCircle(Part.Circle(App.Vector(29.75, -16.933346, 0), App.Vector(0, 0, 1), 1), math.radians(180), math.radians(259.524318)),
    Part.ArcOfCircle(Part.Circle(App.Vector(27.75, -27.75, 0), App.Vector(0, 0, 1), 10), math.radians(10.475682), math.radians(79.524318)),
    Part.ArcOfCircle(Part.Circle(App.Vector(38.566654, -25.75, 0), App.Vector(0, 0, 1), 1), math.radians(-169.524318), math.radians(-90)),
    Part.LineSegment(App.Vector(38.566654, -26.75, 0), App.Vector(43.624508, -26.75, 0)),
    Part.ArcOfCircle(Part.Circle(App.Vector(43.624508, -25.75, 0), App.Vector(0, 0, 1), 1), math.radians(-90), math.radians(7.180756)),
    Part.ArcOfCircle(Part.Circle(App.Vector(27.75, -27.75, 0), App.Vector(0, 0, 1), 17), math.radians(7.180756), math.radians(82.819244)),
    Part.ArcOfCircle(Part.Circle(App.Vector(29.75, -11.875492, 0), App.Vector(0, 0, 1), 1), math.radians(82.819244), math.radians(180)),
    Part.LineSegment(App.Vector(43.624508, -28.75, 0), App.Vector(38.566654, -28.75, 0)),
    Part.ArcOfCircle(Part.Circle(App.Vector(38.566654, -29.75, 0), App.Vector(0, 0, 1), 1), math.radians(90), math.radians(169.524318)),
    Part.ArcOfCircle(Part.Circle(App.Vector(27.75, -27.75, 0), App.Vector(0, 0, 1), 10), math.radians(-79.524318), math.radians(-10.475682)),
    Part.ArcOfCircle(Part.Circle(App.Vector(29.75, -38.566654, 0), App.Vector(0, 0, 1), 1), math.radians(100.475682), math.radians(180)),
    Part.LineSegment(App.Vector(28.75, -38.566654, 0), App.Vector(28.75, -43.624508, 0)),
    Part.ArcOfCircle(Part.Circle(App.Vector(29.75, -43.624508, 0), App.Vector(0, 0, 1), 1), math.radians(180), math.radians(277.180756)),
    Part.ArcOfCircle(Part.Circle(App.Vector(27.75, -27.75, 0), App.Vector(0, 0, 1), 17), math.radians(-82.819244), math.radians(-7.180756)),
    Part.ArcOfCircle(Part.Circle(App.Vector(43.624508, -29.75, 0), App.Vector(0, 0, 1), 1), math.radians(-7.180756), math.radians(90)),
    Part.ArcOfCircle(Part.Circle(App.Vector(25.75, -16.933346, 0), App.Vector(0, 0, 1), 1), math.radians(-79.524318), math.radians(0)),
    Part.LineSegment(App.Vector(26.75, -16.933346, 0), App.Vector(26.75, -11.875492, 0)),
    Part.ArcOfCircle(Part.Circle(App.Vector(25.75, -11.875492, 0), App.Vector(0, 0, 1), 1), math.radians(0), math.radians(97.180756)),
    Part.ArcOfCircle(Part.Circle(App.Vector(27.75, -27.75, 0), App.Vector(0, 0, 1), 17), math.radians(97.180756), math.radians(172.819244)),
    Part.ArcOfCircle(Part.Circle(App.Vector(11.875492, -25.75, 0), App.Vector(0, 0, 1), 1), math.radians(172.819244), math.radians(270)),
    Part.LineSegment(App.Vector(11.875492, -26.75, 0), App.Vector(16.933346, -26.75, 0)),
    Part.ArcOfCircle(Part.Circle(App.Vector(16.933346, -25.75, 0), App.Vector(0, 0, 1), 1), math.radians(-90), math.radians(-10.475682)),
    Part.ArcOfCircle(Part.Circle(App.Vector(27.75, -27.75, 0), App.Vector(0, 0, 1), 10), math.radians(100.475682), math.radians(169.524318)),
    Part.LineSegment(App.Vector(16.933346, -28.75, 0), App.Vector(11.875492, -28.75, 0)),
    Part.ArcOfCircle(Part.Circle(App.Vector(11.875492, -29.75, 0), App.Vector(0, 0, 1), 1), math.radians(90), math.radians(187.180756)),
    Part.ArcOfCircle(Part.Circle(App.Vector(27.75, -27.75, 0), App.Vector(0, 0, 1), 17), math.radians(-172.819244), math.radians(-97.180756)),
    Part.ArcOfCircle(Part.Circle(App.Vector(25.75, -43.624508, 0), App.Vector(0, 0, 1), 1), math.radians(-97.180756), math.radians(0)),
    Part.LineSegment(App.Vector(26.75, -43.624508, 0), App.Vector(26.75, -38.566654, 0)),
    Part.ArcOfCircle(Part.Circle(App.Vector(25.75, -38.566654, 0), App.Vector(0, 0, 1), 1), math.radians(0), math.radians(79.524318)),
    Part.ArcOfCircle(Part.Circle(App.Vector(27.75, -27.75, 0), App.Vector(0, 0, 1), 10), math.radians(-169.524318), math.radians(-100.475682)),
    Part.ArcOfCircle(Part.Circle(App.Vector(16.933346, -29.75, 0), App.Vector(0, 0, 1), 1), math.radians(10.475682), math.radians(90)),
], False)
sketch6.addConstraint([
    Sketcher.Constraint("Tangent", 1, 2, 2, 1),
    Sketcher.Constraint("Tangent", 2, 2, 3, 2),
    Sketcher.Constraint("Tangent", 3, 1, 4, 1),
    Sketcher.Constraint("Tangent", 4, 2, 5, 1),
    Sketcher.Constraint("Tangent", 5, 2, 6, 1),
    Sketcher.Constraint("Tangent", 6, 2, 7, 1),
    Sketcher.Constraint("Tangent", 7, 2, 8, 1),
    Sketcher.Constraint("Tangent", 8, 2, 1, 1),
    Sketcher.Constraint("Tangent", 9, 2, 10, 1),
    Sketcher.Constraint("Tangent", 10, 2, 11, 2),
    Sketcher.Constraint("Tangent", 11, 1, 12, 1),
    Sketcher.Constraint("Tangent", 12, 2, 13, 1),
    Sketcher.Constraint("Tangent", 13, 2, 14, 1),
    Sketcher.Constraint("Tangent", 14, 2, 15, 1),
    Sketcher.Constraint("Tangent", 15, 2, 16, 1),
    Sketcher.Constraint("Tangent", 16, 2, 9, 1),
    Sketcher.Constraint("Tangent", 17, 2, 18, 1),
    Sketcher.Constraint("Tangent", 18, 2, 19, 1),
    Sketcher.Constraint("Tangent", 19, 2, 20, 1),
    Sketcher.Constraint("Tangent", 20, 2, 21, 1),
    Sketcher.Constraint("Tangent", 21, 2, 22, 1),
    Sketcher.Constraint("Tangent", 22, 2, 23, 1),
    Sketcher.Constraint("Tangent", 23, 2, 24, 2),
    Sketcher.Constraint("Tangent", 24, 1, 17, 1),
    Sketcher.Constraint("Tangent", 25, 2, 26, 1),
    Sketcher.Constraint("Tangent", 26, 2, 27, 1),
    Sketcher.Constraint("Tangent", 27, 2, 28, 1),
    Sketcher.Constraint("Tangent", 28, 2, 29, 1),
    Sketcher.Constraint("Tangent", 29, 2, 30, 1),
    Sketcher.Constraint("Tangent", 30, 2, 31, 2),
    Sketcher.Constraint("Tangent", 31, 1, 32, 1),
    Sketcher.Constraint("Tangent", 32, 2, 25, 1),
    Sketcher.Constraint("Vertical", 1),
    Sketcher.Constraint("Horizontal", 5),
    Sketcher.Constraint("Horizontal", 9),
    Sketcher.Constraint("Vertical", 13),
    Sketcher.Constraint("Vertical", 18),
    Sketcher.Constraint("Horizontal", 22),
    Sketcher.Constraint("Horizontal", 25),
    Sketcher.Constraint("Vertical", 29),
    Sketcher.Constraint("Coincident", 3, 3, 0, 3),
    Sketcher.Constraint("Coincident", 7, 3, 0, 3),
    Sketcher.Constraint("Coincident", 11, 3, 0, 3),
    Sketcher.Constraint("Coincident", 15, 3, 0, 3),
    Sketcher.Constraint("Coincident", 20, 3, 0, 3),
    Sketcher.Constraint("Coincident", 24, 3, 0, 3),
    Sketcher.Constraint("Coincident", 27, 3, 0, 3),
    Sketcher.Constraint("Coincident", 31, 3, 0, 3),
    Sketcher.Constraint("Equal", 2, 4),
    Sketcher.Constraint("Equal", 4, 6),
    Sketcher.Constraint("Equal", 6, 8),
    Sketcher.Constraint("Equal", 8, 10),
    Sketcher.Constraint("Equal", 3, 11),
    Sketcher.Constraint("Equal", 10, 12),
    Sketcher.Constraint("Equal", 12, 14),
    Sketcher.Constraint("Equal", 7, 15),
    Sketcher.Constraint("Equal", 14, 16),
    Sketcher.Constraint("Equal", 16, 17),
    Sketcher.Constraint("Equal", 17, 19),
    Sketcher.Constraint("Equal", 15, 20),
    Sketcher.Constraint("Equal", 19, 21),
    Sketcher.Constraint("Equal", 21, 23),
    Sketcher.Constraint("Equal", 11, 24),
    Sketcher.Constraint("Equal", 23, 26),
    Sketcher.Constraint("Equal", 20, 27),
    Sketcher.Constraint("Equal", 26, 28),
    Sketcher.Constraint("Equal", 28, 30),
    Sketcher.Constraint("Equal", 24, 31),
    Sketcher.Constraint("Equal", 30, 32),
    Sketcher.Constraint("Horizontal", 2, 3, 17, 3),
    Sketcher.Constraint("Horizontal", 6, 3, 21, 3),
    Sketcher.Constraint("Horizontal", 16, 3, 26, 3),
    Sketcher.Constraint("Horizontal", 14, 3, 28, 3),
    Sketcher.Constraint("Vertical", 4, 3, 10, 3),
    Sketcher.Constraint("Vertical", 8, 3, 12, 3),
    Sketcher.Constraint("Equal", 25, 1),
    Sketcher.Constraint("Diameter", 0, 38.0),
    Sketcher.Constraint("Radius", 2, 1.0),
    Sketcher.Constraint("Radius", 3, 10.0),
    Sketcher.Constraint("Radius", 7, 17.0),
    Sketcher.Constraint("DistanceX", 0, 3, 2, 3, 2.0),
    Sketcher.Constraint("DistanceX", -1, 1, 0, 3, 27.75),
    Sketcher.Constraint("DistanceY", 0, 3, -1, 1, 27.75),
])
pad5 = doc.addObject("PartDesign::Pad", "Pad004")
body3.addObject(pad5)
pad5.Profile = sketch6
pad5.Length = 2
pad5.Reversed = True

sketch7 = doc.addObject("Sketcher::SketchObject", "Sketch006")
body3.addObject(sketch7)
sketch7.AttachmentSupport = (doc.getObject("XZ_Plane002"), [""])
sketch7.MapMode = "FlatFace"
sketch7.AttachmentOffset = App.Placement(App.Vector(0, 0, -77), App.Rotation())
sketch7.addGeometry(Part.Circle(App.Vector(27.75, -27.75, 0), App.Vector(0, 0, 1), 3), False)
sketch7.addConstraint([
    Sketcher.Constraint("Diameter", 0, 6.0),
    Sketcher.Constraint("DistanceX", -1, 1, 0, 3, 27.75),
    Sketcher.Constraint("DistanceY", 0, 3, -1, 1, 27.75),
])
pocket2 = doc.addObject("PartDesign::Pocket", "Pocket001")
body3.addObject(pocket2)
pocket2.Profile = sketch7
pocket2.Type = "ThroughAll"
pocket2.Midplane = True
doc.recompute()

fillet = doc.addObject("PartDesign::Fillet", "Fillet")
body3.addObject(fillet)
fillet.Base = (pocket2, edges_at(pocket2, [
    (27.75, 77, -8.75),
    (11.125, 77, -26.411),
    (15.729, 77, -15.729),
    (26.411, 77, -11.125),
    (26.75, 77, -14.404),
    (26.519, 77, -17.573),
    (20.679, 77, -20.679),
    (17.573, 77, -26.519),
    (14.404, 77, -26.75),
    (28.981, 77, -17.573),
    (28.75, 77, -14.404),
    (29.089, 77, -11.125),
    (39.771, 77, -15.729),
    (44.375, 77, -26.411),
    (41.096, 77, -26.75),
    (37.927, 77, -26.519),
    (34.821, 77, -20.679),
    (37.927, 77, -28.981),
    (41.096, 77, -28.75),
    (44.375, 77, -29.089),
    (39.771, 77, -39.771),
    (29.089, 77, -44.375),
    (28.75, 77, -41.096),
    (28.981, 77, -37.927),
    (34.821, 77, -34.821),
    (26.519, 77, -37.927),
    (26.75, 77, -41.096),
    (26.411, 77, -44.375),
    (15.729, 77, -39.771),
    (11.125, 77, -29.089),
    (14.404, 77, -28.75),
    (17.573, 77, -28.981),
    (20.679, 77, -34.821),
    (27.75, 77, -30.75),
]))
fillet.Radius = 0.5

sketch8 = doc.addObject("Sketcher::SketchObject", "Sketch007")
body3.addObject(sketch8)
sketch8.AttachmentSupport = (doc.getObject("XZ_Plane002"), [""])
sketch8.MapMode = "FlatFace"
sketch8.AttachmentOffset = App.Placement(App.Vector(0, 0, -75), App.Rotation())
sketch8.addGeometry(Part.Circle(App.Vector(27.75, -27.75, 0), App.Vector(0, 0, 1), 19), False)
sketch8.addConstraint([
    Sketcher.Constraint("Diameter", 0, 38.0),
    Sketcher.Constraint("DistanceX", -1, 1, 0, 3, 27.75),
    Sketcher.Constraint("DistanceY", 0, 3, -1, 1, 27.75),
])
pad6 = doc.addObject("PartDesign::Pad", "Pad005")
body3.addObject(pad6)
pad6.Profile = sketch8
pad6.Length = 1
pad6.Reversed = True

sketch9 = doc.addObject("Sketcher::SketchObject", "Sketch008")
body3.addObject(sketch9)
sketch9.AttachmentSupport = (doc.getObject("XZ_Plane002"), [""])
sketch9.MapMode = "FlatFace"
sketch9.AttachmentOffset = App.Placement(App.Vector(0, 0, -65), App.Rotation())
sketch9.addGeometry(Part.Circle(App.Vector(27.75, -27.75, 0), App.Vector(0, 0, 1), 3), False)
sketch9.addConstraint([
    Sketcher.Constraint("Diameter", 0, 6.0),
    Sketcher.Constraint("DistanceX", -1, 1, 0, 3, 27.75),
    Sketcher.Constraint("DistanceY", 0, 3, -1, 1, 27.75),
])
pocket3 = doc.addObject("PartDesign::Pocket", "Pocket002")
body3.addObject(pocket3)
pocket3.Profile = sketch9
pocket3.Length = 11
body4 = doc.addObject("PartDesign::Body", "Body003")

sketch10 = doc.addObject("Sketcher::SketchObject", "Sketch009")
body4.addObject(sketch10)
sketch10.AttachmentSupport = (doc.getObject("XZ_Plane003"), [""])
sketch10.MapMode = "FlatFace"
sketch10.AttachmentOffset = App.Placement(App.Vector(0, 0, 10), App.Rotation())
sketch10.addGeometry(Part.Circle(App.Vector(27.75, -27.75, 0), App.Vector(0, 0, 1), 3), False)
sketch10.addConstraint([
    Sketcher.Constraint("Diameter", 0, 6.0),
    Sketcher.Constraint("DistanceX", -1, 1, 0, 3, 27.75),
    Sketcher.Constraint("DistanceY", 0, 3, -1, 1, 27.75),
])
pad7 = doc.addObject("PartDesign::Pad", "Pad006")
body4.addObject(pad7)
pad7.Profile = sketch10
pad7.Length = 105
pad7.Reversed = True

doc.recompute()
